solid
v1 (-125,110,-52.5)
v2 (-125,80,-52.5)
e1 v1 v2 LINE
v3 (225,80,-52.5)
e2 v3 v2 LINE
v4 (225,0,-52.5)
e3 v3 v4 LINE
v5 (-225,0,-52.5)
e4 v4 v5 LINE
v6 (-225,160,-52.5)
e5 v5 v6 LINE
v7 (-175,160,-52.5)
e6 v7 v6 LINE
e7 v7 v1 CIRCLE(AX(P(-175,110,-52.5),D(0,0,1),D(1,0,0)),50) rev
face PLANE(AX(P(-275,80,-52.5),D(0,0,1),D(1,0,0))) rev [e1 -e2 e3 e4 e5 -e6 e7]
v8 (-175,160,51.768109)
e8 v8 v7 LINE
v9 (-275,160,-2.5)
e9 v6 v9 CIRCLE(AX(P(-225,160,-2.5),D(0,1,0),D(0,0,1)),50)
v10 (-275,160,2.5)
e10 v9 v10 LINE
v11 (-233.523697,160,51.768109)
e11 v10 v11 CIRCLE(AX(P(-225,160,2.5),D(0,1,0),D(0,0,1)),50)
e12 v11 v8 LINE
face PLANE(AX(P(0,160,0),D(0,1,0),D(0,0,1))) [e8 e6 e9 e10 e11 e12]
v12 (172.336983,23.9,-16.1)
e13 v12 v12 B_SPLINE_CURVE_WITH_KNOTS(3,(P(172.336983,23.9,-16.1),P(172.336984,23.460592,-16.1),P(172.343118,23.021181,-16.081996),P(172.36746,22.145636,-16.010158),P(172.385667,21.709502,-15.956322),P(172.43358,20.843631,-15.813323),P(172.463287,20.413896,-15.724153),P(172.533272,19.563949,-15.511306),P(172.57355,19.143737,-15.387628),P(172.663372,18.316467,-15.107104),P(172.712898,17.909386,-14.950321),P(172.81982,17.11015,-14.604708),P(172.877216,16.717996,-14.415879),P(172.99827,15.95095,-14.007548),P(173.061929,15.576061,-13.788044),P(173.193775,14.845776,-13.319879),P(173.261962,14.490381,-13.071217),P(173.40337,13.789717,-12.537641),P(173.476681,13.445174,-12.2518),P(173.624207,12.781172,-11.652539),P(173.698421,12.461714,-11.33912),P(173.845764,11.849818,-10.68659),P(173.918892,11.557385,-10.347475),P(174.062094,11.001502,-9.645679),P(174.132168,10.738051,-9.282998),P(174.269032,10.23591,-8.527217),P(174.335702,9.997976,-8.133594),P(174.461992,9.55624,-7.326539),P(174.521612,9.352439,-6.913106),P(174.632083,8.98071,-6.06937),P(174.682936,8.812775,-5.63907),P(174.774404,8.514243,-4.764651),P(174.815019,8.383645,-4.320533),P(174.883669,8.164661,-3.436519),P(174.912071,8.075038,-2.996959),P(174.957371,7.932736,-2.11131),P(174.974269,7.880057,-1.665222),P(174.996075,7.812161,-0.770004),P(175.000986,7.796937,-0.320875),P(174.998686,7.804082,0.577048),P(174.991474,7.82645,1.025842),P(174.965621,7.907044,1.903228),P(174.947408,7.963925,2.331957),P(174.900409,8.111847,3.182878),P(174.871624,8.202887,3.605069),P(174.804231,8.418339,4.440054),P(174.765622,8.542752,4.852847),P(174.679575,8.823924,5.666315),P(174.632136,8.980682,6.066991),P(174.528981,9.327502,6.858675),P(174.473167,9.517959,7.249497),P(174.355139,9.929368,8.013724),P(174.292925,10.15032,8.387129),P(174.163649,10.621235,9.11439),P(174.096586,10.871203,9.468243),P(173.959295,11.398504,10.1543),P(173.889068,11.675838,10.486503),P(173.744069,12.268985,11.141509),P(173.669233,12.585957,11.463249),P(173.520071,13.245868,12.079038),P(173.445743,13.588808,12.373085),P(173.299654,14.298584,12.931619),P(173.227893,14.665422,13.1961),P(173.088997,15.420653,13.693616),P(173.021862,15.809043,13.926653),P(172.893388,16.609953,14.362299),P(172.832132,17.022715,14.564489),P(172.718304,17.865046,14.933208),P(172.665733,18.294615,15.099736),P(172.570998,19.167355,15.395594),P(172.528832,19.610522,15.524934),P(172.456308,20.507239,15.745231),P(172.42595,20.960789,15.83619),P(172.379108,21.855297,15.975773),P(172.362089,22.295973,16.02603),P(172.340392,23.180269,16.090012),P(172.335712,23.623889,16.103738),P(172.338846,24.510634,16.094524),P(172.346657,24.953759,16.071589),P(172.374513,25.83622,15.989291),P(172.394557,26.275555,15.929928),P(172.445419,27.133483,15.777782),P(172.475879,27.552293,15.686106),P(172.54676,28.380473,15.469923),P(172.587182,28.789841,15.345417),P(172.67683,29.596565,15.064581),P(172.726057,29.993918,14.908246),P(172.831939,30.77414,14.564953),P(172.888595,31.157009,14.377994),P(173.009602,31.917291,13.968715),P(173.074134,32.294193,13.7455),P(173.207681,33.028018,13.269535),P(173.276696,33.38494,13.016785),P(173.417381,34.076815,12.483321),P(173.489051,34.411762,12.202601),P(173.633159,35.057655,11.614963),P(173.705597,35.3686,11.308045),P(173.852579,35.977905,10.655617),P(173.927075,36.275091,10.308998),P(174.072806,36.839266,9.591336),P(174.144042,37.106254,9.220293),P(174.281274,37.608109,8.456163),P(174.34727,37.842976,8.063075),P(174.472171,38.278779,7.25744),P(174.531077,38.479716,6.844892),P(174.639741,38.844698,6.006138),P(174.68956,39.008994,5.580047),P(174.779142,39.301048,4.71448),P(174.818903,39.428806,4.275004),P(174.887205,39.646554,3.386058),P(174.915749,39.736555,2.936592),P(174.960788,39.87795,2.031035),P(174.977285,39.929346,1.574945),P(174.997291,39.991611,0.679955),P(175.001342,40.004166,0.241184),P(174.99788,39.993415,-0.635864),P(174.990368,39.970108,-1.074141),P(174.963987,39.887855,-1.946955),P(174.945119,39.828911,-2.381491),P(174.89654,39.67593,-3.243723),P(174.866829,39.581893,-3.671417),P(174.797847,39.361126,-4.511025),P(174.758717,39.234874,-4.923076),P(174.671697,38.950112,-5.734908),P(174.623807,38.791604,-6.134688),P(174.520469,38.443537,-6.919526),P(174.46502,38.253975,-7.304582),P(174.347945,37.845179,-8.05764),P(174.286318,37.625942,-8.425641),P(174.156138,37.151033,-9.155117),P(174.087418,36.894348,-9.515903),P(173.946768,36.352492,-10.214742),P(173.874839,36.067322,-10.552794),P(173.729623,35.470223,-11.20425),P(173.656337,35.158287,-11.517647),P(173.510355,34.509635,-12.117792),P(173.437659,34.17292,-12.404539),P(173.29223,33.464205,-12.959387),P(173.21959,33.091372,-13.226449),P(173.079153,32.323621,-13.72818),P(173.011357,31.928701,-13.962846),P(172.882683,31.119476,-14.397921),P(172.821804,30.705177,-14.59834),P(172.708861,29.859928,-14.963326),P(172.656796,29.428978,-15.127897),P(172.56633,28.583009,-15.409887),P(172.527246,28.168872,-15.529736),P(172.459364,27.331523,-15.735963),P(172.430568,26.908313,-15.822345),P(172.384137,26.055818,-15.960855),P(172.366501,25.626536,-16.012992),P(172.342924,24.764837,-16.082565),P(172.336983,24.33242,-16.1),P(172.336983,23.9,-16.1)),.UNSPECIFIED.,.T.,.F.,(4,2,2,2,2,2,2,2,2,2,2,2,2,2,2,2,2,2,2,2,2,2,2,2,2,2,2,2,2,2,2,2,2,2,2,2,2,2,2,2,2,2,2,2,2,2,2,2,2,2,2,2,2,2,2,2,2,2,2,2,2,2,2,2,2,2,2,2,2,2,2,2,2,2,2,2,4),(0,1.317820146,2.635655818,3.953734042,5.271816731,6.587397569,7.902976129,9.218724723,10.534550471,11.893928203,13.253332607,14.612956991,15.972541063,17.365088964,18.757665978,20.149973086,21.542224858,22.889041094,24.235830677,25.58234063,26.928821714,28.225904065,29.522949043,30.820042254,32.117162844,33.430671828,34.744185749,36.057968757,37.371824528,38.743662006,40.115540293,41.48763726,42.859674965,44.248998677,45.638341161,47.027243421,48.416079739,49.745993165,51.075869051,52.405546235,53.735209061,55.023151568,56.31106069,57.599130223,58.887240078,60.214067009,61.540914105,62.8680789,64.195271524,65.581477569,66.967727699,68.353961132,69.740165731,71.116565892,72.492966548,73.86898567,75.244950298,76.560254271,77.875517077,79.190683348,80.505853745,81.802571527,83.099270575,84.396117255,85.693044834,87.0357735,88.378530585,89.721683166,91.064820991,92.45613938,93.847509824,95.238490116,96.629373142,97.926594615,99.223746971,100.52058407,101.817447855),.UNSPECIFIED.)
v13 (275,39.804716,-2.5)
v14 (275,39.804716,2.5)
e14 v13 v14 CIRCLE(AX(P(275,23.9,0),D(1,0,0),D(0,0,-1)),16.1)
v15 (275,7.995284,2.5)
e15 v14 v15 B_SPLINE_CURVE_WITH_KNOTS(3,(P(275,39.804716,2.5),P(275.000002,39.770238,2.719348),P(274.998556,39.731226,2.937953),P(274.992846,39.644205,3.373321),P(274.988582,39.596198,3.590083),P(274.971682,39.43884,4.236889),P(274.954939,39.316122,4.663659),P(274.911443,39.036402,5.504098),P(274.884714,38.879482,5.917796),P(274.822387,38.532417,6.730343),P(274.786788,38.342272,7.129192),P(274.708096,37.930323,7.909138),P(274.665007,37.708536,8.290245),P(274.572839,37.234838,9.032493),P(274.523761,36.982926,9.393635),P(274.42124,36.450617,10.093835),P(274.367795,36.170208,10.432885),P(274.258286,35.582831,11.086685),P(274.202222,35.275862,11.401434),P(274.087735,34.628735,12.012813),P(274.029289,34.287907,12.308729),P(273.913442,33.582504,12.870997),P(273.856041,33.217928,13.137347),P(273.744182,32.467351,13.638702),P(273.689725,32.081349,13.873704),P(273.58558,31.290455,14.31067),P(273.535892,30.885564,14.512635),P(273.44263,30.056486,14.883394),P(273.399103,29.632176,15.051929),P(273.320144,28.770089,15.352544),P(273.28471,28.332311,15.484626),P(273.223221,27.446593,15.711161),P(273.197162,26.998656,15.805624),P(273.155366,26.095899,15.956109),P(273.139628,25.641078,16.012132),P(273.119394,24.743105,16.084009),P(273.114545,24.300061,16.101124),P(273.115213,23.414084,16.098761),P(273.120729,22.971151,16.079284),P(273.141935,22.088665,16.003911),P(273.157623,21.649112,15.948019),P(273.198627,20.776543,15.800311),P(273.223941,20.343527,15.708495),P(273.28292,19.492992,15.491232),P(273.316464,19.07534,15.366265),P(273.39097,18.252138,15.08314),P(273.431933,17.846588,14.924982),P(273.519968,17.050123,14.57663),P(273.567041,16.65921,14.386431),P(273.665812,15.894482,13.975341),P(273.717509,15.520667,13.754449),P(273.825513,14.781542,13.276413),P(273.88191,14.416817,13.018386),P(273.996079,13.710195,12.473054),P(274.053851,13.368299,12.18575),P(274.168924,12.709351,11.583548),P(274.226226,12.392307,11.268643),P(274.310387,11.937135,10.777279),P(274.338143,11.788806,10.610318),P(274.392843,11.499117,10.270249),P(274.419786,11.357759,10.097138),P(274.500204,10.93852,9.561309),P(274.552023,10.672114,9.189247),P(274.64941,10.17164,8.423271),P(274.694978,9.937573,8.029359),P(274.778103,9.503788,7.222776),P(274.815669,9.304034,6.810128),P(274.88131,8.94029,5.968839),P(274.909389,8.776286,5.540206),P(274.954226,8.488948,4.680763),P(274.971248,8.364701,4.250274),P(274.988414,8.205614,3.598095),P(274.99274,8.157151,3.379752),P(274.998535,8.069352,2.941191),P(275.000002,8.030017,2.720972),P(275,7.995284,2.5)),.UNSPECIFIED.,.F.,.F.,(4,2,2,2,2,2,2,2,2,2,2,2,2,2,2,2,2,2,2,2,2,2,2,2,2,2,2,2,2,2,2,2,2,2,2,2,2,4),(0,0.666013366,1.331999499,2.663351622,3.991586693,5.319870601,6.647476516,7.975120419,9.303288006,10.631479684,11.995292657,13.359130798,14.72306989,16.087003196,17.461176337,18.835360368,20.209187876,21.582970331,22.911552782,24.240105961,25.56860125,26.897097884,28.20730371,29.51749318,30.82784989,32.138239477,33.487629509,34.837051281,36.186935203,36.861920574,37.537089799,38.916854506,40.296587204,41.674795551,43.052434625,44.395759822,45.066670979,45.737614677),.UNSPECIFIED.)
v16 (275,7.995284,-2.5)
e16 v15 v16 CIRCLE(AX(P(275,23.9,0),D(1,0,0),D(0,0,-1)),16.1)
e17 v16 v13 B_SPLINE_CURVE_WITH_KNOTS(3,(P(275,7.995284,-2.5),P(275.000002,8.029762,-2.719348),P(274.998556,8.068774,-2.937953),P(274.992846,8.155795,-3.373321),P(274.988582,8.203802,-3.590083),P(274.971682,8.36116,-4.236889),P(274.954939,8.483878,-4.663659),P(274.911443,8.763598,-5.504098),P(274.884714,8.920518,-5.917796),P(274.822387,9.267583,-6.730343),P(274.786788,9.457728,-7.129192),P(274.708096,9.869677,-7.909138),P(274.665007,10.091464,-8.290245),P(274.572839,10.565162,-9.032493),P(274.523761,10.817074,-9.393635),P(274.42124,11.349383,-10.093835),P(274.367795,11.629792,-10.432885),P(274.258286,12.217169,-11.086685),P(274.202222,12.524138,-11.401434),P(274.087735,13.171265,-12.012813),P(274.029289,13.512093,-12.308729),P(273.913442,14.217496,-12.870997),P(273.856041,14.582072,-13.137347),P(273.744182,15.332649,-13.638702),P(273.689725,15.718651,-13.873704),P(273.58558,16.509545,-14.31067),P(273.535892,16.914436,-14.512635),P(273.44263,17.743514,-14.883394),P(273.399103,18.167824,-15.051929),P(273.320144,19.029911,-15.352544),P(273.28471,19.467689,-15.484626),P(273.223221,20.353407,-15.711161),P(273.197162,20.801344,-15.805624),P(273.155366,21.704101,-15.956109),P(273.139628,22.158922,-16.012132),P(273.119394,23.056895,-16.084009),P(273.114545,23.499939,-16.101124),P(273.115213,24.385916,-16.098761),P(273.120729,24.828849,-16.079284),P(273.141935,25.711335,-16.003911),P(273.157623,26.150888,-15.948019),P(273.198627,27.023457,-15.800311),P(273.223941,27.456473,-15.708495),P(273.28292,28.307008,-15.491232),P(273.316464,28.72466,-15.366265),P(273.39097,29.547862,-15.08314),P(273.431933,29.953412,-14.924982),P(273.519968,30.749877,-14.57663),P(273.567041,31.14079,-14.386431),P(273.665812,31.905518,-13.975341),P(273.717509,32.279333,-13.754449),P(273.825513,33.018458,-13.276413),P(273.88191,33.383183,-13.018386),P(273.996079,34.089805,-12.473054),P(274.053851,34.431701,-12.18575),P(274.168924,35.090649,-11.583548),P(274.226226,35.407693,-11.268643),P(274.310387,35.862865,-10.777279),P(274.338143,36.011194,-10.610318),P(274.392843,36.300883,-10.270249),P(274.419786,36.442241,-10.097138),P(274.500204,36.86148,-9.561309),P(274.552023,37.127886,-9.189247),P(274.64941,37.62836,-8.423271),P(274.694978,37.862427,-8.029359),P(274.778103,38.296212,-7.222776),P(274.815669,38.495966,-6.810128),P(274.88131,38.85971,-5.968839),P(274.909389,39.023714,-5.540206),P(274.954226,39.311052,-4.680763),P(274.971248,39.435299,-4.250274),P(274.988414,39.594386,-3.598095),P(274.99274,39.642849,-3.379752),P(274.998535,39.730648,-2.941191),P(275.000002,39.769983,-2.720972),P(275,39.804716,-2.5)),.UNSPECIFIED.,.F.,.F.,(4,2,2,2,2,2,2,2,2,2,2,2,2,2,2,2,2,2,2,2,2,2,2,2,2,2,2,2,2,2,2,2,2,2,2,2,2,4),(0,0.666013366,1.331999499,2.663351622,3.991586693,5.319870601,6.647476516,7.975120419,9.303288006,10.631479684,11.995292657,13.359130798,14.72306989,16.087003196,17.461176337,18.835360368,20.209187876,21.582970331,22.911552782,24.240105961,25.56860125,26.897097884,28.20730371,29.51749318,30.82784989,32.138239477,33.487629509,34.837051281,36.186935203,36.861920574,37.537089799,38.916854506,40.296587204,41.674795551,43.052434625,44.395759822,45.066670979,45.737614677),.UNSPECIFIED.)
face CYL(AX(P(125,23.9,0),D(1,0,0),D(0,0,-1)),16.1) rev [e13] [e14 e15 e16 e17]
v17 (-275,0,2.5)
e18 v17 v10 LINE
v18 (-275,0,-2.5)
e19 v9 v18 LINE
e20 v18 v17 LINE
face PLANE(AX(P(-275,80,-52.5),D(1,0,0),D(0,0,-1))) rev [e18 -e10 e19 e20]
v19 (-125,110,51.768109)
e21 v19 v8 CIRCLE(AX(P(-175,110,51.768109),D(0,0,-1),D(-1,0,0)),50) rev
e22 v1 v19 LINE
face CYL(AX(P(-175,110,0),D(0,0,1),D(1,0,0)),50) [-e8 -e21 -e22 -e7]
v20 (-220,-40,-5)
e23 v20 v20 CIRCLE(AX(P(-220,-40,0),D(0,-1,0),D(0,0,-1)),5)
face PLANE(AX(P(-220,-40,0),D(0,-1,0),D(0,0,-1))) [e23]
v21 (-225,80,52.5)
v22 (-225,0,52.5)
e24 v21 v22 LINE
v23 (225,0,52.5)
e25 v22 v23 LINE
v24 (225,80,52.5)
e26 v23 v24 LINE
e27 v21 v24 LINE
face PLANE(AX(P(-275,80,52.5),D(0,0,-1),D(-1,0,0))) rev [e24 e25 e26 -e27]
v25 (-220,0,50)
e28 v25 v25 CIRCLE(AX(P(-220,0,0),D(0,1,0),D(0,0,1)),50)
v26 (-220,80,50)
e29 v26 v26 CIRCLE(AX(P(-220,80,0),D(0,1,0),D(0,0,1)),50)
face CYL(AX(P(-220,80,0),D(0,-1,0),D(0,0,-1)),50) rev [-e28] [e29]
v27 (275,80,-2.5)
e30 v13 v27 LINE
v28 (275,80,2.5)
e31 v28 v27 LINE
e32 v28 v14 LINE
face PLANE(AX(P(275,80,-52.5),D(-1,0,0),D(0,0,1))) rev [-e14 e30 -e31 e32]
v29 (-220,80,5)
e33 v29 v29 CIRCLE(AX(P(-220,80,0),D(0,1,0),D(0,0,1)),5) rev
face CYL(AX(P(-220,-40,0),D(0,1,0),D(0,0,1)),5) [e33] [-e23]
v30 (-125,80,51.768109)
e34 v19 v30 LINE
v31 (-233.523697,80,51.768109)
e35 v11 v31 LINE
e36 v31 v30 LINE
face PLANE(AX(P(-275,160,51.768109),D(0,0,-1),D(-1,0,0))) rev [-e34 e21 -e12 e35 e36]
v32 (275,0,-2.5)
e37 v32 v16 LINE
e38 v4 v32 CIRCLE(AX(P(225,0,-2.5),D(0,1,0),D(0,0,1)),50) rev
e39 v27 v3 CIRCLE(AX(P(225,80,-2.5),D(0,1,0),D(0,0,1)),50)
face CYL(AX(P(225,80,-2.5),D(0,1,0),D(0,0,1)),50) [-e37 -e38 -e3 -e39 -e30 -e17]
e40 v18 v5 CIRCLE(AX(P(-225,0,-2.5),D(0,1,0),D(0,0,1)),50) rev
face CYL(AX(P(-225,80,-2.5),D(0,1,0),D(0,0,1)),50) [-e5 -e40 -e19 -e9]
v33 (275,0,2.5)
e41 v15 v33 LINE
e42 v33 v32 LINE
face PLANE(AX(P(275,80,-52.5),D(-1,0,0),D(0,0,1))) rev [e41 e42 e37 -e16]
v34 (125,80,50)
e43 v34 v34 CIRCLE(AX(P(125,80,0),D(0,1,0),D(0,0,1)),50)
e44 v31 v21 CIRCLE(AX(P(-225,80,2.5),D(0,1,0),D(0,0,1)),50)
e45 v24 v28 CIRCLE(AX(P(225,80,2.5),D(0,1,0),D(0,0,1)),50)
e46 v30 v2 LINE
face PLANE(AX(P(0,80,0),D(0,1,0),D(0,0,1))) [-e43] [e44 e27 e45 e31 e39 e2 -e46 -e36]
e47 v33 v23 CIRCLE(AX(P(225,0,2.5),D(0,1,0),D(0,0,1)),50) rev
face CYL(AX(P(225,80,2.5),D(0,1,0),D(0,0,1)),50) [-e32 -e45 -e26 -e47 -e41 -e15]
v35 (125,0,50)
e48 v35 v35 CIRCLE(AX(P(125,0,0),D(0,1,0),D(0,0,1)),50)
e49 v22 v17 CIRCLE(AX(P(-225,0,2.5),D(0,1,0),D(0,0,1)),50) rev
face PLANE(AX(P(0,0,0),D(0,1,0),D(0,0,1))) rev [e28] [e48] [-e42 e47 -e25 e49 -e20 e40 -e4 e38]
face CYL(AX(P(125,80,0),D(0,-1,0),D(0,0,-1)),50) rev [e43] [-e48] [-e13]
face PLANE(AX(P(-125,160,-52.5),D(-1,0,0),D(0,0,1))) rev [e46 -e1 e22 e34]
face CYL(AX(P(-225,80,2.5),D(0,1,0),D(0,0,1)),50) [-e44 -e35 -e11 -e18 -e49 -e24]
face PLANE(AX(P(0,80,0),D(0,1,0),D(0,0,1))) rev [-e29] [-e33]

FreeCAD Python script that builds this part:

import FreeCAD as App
import Part
import Sketcher
from FreeCAD import Vector
Q = App.Units.Quantity


def edges_at(feature, points):
    """Names of the edges that pass closest to the given points."""
    edges = feature.Shape.Edges
    near = lambda p: min(range(len(edges)), key=lambda i: edges[i].distToShape(Part.Vertex(*p))[0])
    return sorted({f"Edge{near(p) + 1}" for p in points})

doc = App.newDocument("Part")
params = doc.addObject("Spreadsheet::Sheet", "Params")
for row, (alias, value) in enumerate([
    ("sketch1_diameter", "100 mm"),
    ("sketch1_width", "550 mm"),
    ("sketch1_height", "105 mm"),
    ("pad1_length", "80 mm"),
    ("fillet_radius", "50 mm"),
    ("fillet2_radius", "50 mm"),
    ("sketch2_width", "150 mm"),
    ("pad2_length", "80 mm"),
    ("sketch3_diameter", "10 mm"),
    ("pad3_length", "120 mm"),
    ("fillet3_radius", "50 mm"),
    ("fillet4_radius", "50 mm"),
    ("fillet5_radius", "50 mm"),
    ("sketch4_diameter", "32.2 mm"),
    ("pocket1_length", "150 mm"),
], start=1):
    params.set(f"A{row}", alias)
    params.set(f"B{row}", "=" + value)
    params.setAlias(f"B{row}", alias)

body = doc.addObject("PartDesign::Body", "Body")

sketch1 = body.newObject("Sketcher::SketchObject", "Sketch")
sketch1.AttachmentSupport = (doc.getObject("XZ_Plane"), [""])
sketch1.MapMode = "FlatFace"
sketch1.addGeometry(Part.LineSegment(Vector(-275, -52.5, 0), Vector(-275, 52.5, 0)), False)
sketch1.addGeometry(Part.LineSegment(Vector(-275, 52.5, 0), Vector(275, 52.5, 0)), False)
sketch1.addGeometry(Part.LineSegment(Vector(275, 52.5, 0), Vector(275, -52.5, 0)), False)
sketch1.addGeometry(Part.LineSegment(Vector(275, -52.5, 0), Vector(-275, -52.5, 0)), False)
sketch1.addGeometry(Part.Circle(Vector(-220, 0, 0), Vector(0, 0, 1), 50), False)
sketch1.addGeometry(Part.Circle(Vector(125, 0, 0), Vector(0, 0, 1), 50), False)
sketch1.addConstraint(Sketcher.Constraint("Coincident", 0, 2, 1, 1))
sketch1.addConstraint(Sketcher.Constraint("Coincident", 1, 2, 2, 1))
sketch1.addConstraint(Sketcher.Constraint("Coincident", 2, 2, 3, 1))
sketch1.addConstraint(Sketcher.Constraint("Coincident", 3, 2, 0, 1))
sketch1.addConstraint(Sketcher.Constraint("Vertical", 0))
sketch1.addConstraint(Sketcher.Constraint("Horizontal", 1))
sketch1.addConstraint(Sketcher.Constraint("Vertical", 2))
sketch1.addConstraint(Sketcher.Constraint("Horizontal", 3))
sketch1.addConstraint(Sketcher.Constraint("Equal", 4, 5))
sketch1.addConstraint(Sketcher.Constraint("Symmetric", 0, 2, 2, 2, -1, 1))
sketch1.addConstraint(Sketcher.Constraint("PointOnObject", 4, 3, -1))
sketch1.addConstraint(Sketcher.Constraint("PointOnObject", 5, 3, -1))
sketch1.addConstraint(Sketcher.Constraint("Diameter", 4, Q("100 mm")))
sketch1.addConstraint(Sketcher.Constraint("DistanceX", 1, 1, 1, 2, Q("550 mm")))
sketch1.addConstraint(Sketcher.Constraint("DistanceY", 0, 1, 0, 2, Q("105 mm")))
sketch1.addConstraint(Sketcher.Constraint("DistanceX", 4, 3, -1, 1, Q("220 mm")))
sketch1.addConstraint(Sketcher.Constraint("DistanceX", -1, 1, 5, 3, Q("125 mm")))
sketch1.setExpression("Constraints[12]", "Params.sketch1_diameter")
sketch1.setExpression("Constraints[13]", "Params.sketch1_width")
sketch1.setExpression("Constraints[14]", "Params.sketch1_height")
pad1 = body.newObject("PartDesign::Pad", "Pad")
pad1.Profile = sketch1
pad1.setExpression("Length", "Params.pad1_length")
pad1.Reversed = True
doc.recompute()

fillet = body.newObject("PartDesign::Fillet", "Fillet")
fillet.Base = (pad1, edges_at(pad1, [(275, 40, 52.5)]))
fillet.setExpression("Radius", "Params.fillet_radius")
doc.recompute()

fillet2 = body.newObject("PartDesign::Fillet", "Fillet001")
fillet2.Base = (fillet, edges_at(fillet, [(275, 40, -52.5)]))
fillet2.setExpression("Radius", "Params.fillet2_radius")

sketch2 = body.newObject("Sketcher::SketchObject", "Sketch001")
sketch2.AttachmentSupport = (doc.getObject("XZ_Plane"), [""])
sketch2.MapMode = "FlatFace"
sketch2.AttachmentOffset = App.Placement(Vector(0, 0, -80), App.Rotation())
sketch2.addGeometry(Part.LineSegment(Vector(-275, -52.5, 0), Vector(-275, 51.768109, 0)), False)
sketch2.addGeometry(Part.LineSegment(Vector(-275, 51.768109, 0), Vector(-125, 51.768109, 0)), False)
sketch2.addGeometry(Part.LineSegment(Vector(-125, 51.768109, 0), Vector(-125, -52.5, 0)), False)
sketch2.addGeometry(Part.LineSegment(Vector(-125, -52.5, 0), Vector(-275, -52.5, 0)), False)
sketch2.addConstraint(Sketcher.Constraint("Coincident", 0, 2, 1, 1))
sketch2.addConstraint(Sketcher.Constraint("Coincident", 1, 2, 2, 1))
sketch2.addConstraint(Sketcher.Constraint("Coincident", 2, 2, 3, 1))
sketch2.addConstraint(Sketcher.Constraint("Coincident", 3, 2, 0, 1))
sketch2.addConstraint(Sketcher.Constraint("Vertical", 0))
sketch2.addConstraint(Sketcher.Constraint("Horizontal", 1))
sketch2.addConstraint(Sketcher.Constraint("Vertical", 2))
sketch2.addConstraint(Sketcher.Constraint("Horizontal", 3))
sketch2.addConstraint(Sketcher.Constraint("DistanceX", 1, 1, 1, 2, Q("150 mm")))
sketch2.addConstraint(Sketcher.Constraint("DistanceX", 0, 2, -1, 1, Q("275 mm")))
sketch2.addConstraint(Sketcher.Constraint("DistanceY", 2, 2, -1, 1, Q("52.5 mm")))
sketch2.addConstraint(Sketcher.Constraint("DistanceY", 0, 1, 0, 2, Q("104.268109 mm")))
sketch2.setExpression("Constraints[8]", "Params.sketch2_width")
pad2 = body.newObject("PartDesign::Pad", "Pad001")
pad2.Profile = sketch2
pad2.setExpression("Length", "Params.pad2_length")
pad2.Reversed = True

sketch3 = body.newObject("Sketcher::SketchObject", "Sketch002")
sketch3.AttachmentSupport = (doc.getObject("XZ_Plane"), [""])
sketch3.MapMode = "FlatFace"
sketch3.AttachmentOffset = App.Placement(Vector(0, 0, -80), App.Rotation())
sketch3.addGeometry(Part.Circle(Vector(-220, 0, 0), Vector(0, 0, 1), 5), False)
sketch3.addConstraint(Sketcher.Constraint("PointOnObject", 0, 3, -1))
sketch3.addConstraint(Sketcher.Constraint("Diameter", 0, Q("10 mm")))
sketch3.addConstraint(Sketcher.Constraint("DistanceX", 0, 3, -1, 1, Q("220 mm")))
sketch3.setExpression("Constraints[1]", "Params.sketch3_diameter")
pad3 = body.newObject("PartDesign::Pad", "Pad002")
pad3.Profile = sketch3
pad3.setExpression("Length", "Params.pad3_length")
doc.recompute()

fillet3 = body.newObject("PartDesign::Fillet", "Fillet002")
fillet3.Base = (pad3, edges_at(pad3, [(-275, 40, 52.5)]))
fillet3.setExpression("Radius", "Params.fillet3_radius")
doc.recompute()

fillet4 = body.newObject("PartDesign::Fillet", "Fillet003")
fillet4.Base = (fillet3, edges_at(fillet3, [(-275, 80, -52.5)]))
fillet4.setExpression("Radius", "Params.fillet4_radius")
doc.recompute()

fillet5 = body.newObject("PartDesign::Fillet", "Fillet004")
fillet5.Base = (fillet4, edges_at(fillet4, [(-125, 160, -0.366)]))
fillet5.setExpression("Radius", "Params.fillet5_radius")

sketch4 = body.newObject("Sketcher::SketchObject", "Sketch003")
sketch4.AttachmentSupport = (doc.getObject("YZ_Plane"), [""])
sketch4.MapMode = "FlatFace"
sketch4.AttachmentOffset = App.Placement(Vector(0, 0, 275), App.Rotation())
sketch4.addGeometry(Part.Circle(Vector(23.9, 0, 0), Vector(0, 0, 1), 16.1), False)
sketch4.addConstraint(Sketcher.Constraint("PointOnObject", 0, 3, -1))
sketch4.addConstraint(Sketcher.Constraint("Diameter", 0, Q("32.2 mm")))
sketch4.addConstraint(Sketcher.Constraint("DistanceX", -1, 1, 0, 3, Q("23.9 mm")))
sketch4.setExpression("Constraints[1]", "Params.sketch4_diameter")
pocket1 = body.newObject("PartDesign::Pocket", "Pocket")
pocket1.Profile = sketch4
pocket1.setExpression("Length", "Params.pocket1_length")

doc.recompute()
